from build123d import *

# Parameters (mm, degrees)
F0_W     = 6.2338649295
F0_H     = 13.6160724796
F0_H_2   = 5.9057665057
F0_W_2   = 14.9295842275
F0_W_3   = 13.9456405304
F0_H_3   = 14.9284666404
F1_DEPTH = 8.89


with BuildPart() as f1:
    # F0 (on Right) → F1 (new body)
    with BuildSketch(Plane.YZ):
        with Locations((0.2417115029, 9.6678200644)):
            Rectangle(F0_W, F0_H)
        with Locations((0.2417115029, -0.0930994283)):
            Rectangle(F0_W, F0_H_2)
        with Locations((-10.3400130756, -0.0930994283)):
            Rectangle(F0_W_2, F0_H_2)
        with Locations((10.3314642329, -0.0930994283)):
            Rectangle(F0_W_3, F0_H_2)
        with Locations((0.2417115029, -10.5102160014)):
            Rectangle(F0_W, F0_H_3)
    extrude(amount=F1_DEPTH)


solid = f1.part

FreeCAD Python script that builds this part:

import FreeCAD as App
import Part
import Sketcher
from FreeCAD import Vector
Q = App.Units.Quantity

doc = App.newDocument("Part")
body = doc.addObject("PartDesign::Body", "Body")

# Sketch on YZ plane
sketch1 = body.newObject("Sketcher::SketchObject", "Sketch")
sketch1.AttachmentSupport = (doc.getObject("YZ_Plane"), [""])
sketch1.MapMode = "FlatFace"
sketch1.addGeometry([
    Part.LineSegment(Vector(-3, 16, 0), Vector(-3, 3, 0)),  # 0
    Part.LineSegment(Vector(-3, 3, 0), Vector(-18, 3, 0)),  # 1
    Part.LineSegment(Vector(-18, 3, 0), Vector(-18, -3, 0)),  # 2
    Part.LineSegment(Vector(-18, -3, 0), Vector(-3, -3, 0)),  # 3
    Part.LineSegment(Vector(-3, -3, 0), Vector(-3, -18, 0)),  # 4
    Part.LineSegment(Vector(-3, -18, 0), Vector(3, -18, 0)),  # 5
    Part.LineSegment(Vector(3, -18, 0), Vector(3, -3, 0)),  # 6
    Part.LineSegment(Vector(3, -3, 0), Vector(17, -3, 0)),  # 7
    Part.LineSegment(Vector(17, -3, 0), Vector(17, 3, 0)),  # 8
    Part.LineSegment(Vector(17, 3, 0), Vector(3, 3, 0)),  # 9
    Part.LineSegment(Vector(3, 3, 0), Vector(3, 16, 0)),  # 10
    Part.LineSegment(Vector(3, 16, 0), Vector(-3, 16, 0)),  # 11
], False)
sketch1.addConstraint([
    Sketcher.Constraint("Coincident", 0, 2, 1, 1),
    Sketcher.Constraint("Coincident", 1, 2, 2, 1),
    Sketcher.Constraint("Coincident", 2, 2, 3, 1),
    Sketcher.Constraint("Coincident", 3, 2, 4, 1),
    Sketcher.Constraint("Coincident", 4, 2, 5, 1),
    Sketcher.Constraint("Coincident", 5, 2, 6, 1),
    Sketcher.Constraint("Coincident", 6, 2, 7, 1),
    Sketcher.Constraint("Coincident", 7, 2, 8, 1),
    Sketcher.Constraint("Coincident", 8, 2, 9, 1),
    Sketcher.Constraint("Coincident", 9, 2, 10, 1),
    Sketcher.Constraint("Coincident", 10, 2, 11, 1),
    Sketcher.Constraint("Coincident", 11, 2, 0, 1),
    Sketcher.Constraint("Vertical", 0),
    Sketcher.Constraint("Horizontal", 1),
    Sketcher.Constraint("Vertical", 2),
    Sketcher.Constraint("Horizontal", 3),
    Sketcher.Constraint("Vertical", 4),
    Sketcher.Constraint("Horizontal", 5),
    Sketcher.Constraint("Vertical", 6),
    Sketcher.Constraint("Horizontal", 7),
    Sketcher.Constraint("Vertical", 8),
    Sketcher.Constraint("Horizontal", 9),
    Sketcher.Constraint("Vertical", 10),
    Sketcher.Constraint("Horizontal", 11),
    Sketcher.Constraint("Horizontal", 3, 2, 6, 2),
    Sketcher.Constraint("Horizontal", 1, 2, 8, 2),
    Sketcher.Constraint("Vertical", 0, 2, 3, 2),
    Sketcher.Constraint("Vertical", 6, 2, 9, 2),
    Sketcher.Constraint("DistanceX", 7, 1, 7, 2, Q("13.945641 mm")),
    Sketcher.Constraint("DistanceX", 1, 2, 1, 1, Q("14.929584 mm")),
    Sketcher.Constraint("DistanceX", 5, 1, 5, 2, Q("6.233865 mm")),
    Sketcher.Constraint("DistanceY", 0, 2, 0, 1, Q("13.616072 mm")),
    Sketcher.Constraint("DistanceY", 2, 2, 2, 1, Q("5.905767 mm")),
    Sketcher.Constraint("DistanceY", 4, 2, 4, 1, Q("14.928467 mm")),
    Sketcher.Constraint("DistanceX", 0, 2, -1, 1, Q("2.875221 mm")),
    Sketcher.Constraint("DistanceY", 4, 2, -1, 1, Q("17.974449 mm")),
])
pad1 = body.newObject("PartDesign::Pad", "Pad")
pad1.Profile = sketch1
pad1.Length = Q("0.35 in")

doc.recompute()
